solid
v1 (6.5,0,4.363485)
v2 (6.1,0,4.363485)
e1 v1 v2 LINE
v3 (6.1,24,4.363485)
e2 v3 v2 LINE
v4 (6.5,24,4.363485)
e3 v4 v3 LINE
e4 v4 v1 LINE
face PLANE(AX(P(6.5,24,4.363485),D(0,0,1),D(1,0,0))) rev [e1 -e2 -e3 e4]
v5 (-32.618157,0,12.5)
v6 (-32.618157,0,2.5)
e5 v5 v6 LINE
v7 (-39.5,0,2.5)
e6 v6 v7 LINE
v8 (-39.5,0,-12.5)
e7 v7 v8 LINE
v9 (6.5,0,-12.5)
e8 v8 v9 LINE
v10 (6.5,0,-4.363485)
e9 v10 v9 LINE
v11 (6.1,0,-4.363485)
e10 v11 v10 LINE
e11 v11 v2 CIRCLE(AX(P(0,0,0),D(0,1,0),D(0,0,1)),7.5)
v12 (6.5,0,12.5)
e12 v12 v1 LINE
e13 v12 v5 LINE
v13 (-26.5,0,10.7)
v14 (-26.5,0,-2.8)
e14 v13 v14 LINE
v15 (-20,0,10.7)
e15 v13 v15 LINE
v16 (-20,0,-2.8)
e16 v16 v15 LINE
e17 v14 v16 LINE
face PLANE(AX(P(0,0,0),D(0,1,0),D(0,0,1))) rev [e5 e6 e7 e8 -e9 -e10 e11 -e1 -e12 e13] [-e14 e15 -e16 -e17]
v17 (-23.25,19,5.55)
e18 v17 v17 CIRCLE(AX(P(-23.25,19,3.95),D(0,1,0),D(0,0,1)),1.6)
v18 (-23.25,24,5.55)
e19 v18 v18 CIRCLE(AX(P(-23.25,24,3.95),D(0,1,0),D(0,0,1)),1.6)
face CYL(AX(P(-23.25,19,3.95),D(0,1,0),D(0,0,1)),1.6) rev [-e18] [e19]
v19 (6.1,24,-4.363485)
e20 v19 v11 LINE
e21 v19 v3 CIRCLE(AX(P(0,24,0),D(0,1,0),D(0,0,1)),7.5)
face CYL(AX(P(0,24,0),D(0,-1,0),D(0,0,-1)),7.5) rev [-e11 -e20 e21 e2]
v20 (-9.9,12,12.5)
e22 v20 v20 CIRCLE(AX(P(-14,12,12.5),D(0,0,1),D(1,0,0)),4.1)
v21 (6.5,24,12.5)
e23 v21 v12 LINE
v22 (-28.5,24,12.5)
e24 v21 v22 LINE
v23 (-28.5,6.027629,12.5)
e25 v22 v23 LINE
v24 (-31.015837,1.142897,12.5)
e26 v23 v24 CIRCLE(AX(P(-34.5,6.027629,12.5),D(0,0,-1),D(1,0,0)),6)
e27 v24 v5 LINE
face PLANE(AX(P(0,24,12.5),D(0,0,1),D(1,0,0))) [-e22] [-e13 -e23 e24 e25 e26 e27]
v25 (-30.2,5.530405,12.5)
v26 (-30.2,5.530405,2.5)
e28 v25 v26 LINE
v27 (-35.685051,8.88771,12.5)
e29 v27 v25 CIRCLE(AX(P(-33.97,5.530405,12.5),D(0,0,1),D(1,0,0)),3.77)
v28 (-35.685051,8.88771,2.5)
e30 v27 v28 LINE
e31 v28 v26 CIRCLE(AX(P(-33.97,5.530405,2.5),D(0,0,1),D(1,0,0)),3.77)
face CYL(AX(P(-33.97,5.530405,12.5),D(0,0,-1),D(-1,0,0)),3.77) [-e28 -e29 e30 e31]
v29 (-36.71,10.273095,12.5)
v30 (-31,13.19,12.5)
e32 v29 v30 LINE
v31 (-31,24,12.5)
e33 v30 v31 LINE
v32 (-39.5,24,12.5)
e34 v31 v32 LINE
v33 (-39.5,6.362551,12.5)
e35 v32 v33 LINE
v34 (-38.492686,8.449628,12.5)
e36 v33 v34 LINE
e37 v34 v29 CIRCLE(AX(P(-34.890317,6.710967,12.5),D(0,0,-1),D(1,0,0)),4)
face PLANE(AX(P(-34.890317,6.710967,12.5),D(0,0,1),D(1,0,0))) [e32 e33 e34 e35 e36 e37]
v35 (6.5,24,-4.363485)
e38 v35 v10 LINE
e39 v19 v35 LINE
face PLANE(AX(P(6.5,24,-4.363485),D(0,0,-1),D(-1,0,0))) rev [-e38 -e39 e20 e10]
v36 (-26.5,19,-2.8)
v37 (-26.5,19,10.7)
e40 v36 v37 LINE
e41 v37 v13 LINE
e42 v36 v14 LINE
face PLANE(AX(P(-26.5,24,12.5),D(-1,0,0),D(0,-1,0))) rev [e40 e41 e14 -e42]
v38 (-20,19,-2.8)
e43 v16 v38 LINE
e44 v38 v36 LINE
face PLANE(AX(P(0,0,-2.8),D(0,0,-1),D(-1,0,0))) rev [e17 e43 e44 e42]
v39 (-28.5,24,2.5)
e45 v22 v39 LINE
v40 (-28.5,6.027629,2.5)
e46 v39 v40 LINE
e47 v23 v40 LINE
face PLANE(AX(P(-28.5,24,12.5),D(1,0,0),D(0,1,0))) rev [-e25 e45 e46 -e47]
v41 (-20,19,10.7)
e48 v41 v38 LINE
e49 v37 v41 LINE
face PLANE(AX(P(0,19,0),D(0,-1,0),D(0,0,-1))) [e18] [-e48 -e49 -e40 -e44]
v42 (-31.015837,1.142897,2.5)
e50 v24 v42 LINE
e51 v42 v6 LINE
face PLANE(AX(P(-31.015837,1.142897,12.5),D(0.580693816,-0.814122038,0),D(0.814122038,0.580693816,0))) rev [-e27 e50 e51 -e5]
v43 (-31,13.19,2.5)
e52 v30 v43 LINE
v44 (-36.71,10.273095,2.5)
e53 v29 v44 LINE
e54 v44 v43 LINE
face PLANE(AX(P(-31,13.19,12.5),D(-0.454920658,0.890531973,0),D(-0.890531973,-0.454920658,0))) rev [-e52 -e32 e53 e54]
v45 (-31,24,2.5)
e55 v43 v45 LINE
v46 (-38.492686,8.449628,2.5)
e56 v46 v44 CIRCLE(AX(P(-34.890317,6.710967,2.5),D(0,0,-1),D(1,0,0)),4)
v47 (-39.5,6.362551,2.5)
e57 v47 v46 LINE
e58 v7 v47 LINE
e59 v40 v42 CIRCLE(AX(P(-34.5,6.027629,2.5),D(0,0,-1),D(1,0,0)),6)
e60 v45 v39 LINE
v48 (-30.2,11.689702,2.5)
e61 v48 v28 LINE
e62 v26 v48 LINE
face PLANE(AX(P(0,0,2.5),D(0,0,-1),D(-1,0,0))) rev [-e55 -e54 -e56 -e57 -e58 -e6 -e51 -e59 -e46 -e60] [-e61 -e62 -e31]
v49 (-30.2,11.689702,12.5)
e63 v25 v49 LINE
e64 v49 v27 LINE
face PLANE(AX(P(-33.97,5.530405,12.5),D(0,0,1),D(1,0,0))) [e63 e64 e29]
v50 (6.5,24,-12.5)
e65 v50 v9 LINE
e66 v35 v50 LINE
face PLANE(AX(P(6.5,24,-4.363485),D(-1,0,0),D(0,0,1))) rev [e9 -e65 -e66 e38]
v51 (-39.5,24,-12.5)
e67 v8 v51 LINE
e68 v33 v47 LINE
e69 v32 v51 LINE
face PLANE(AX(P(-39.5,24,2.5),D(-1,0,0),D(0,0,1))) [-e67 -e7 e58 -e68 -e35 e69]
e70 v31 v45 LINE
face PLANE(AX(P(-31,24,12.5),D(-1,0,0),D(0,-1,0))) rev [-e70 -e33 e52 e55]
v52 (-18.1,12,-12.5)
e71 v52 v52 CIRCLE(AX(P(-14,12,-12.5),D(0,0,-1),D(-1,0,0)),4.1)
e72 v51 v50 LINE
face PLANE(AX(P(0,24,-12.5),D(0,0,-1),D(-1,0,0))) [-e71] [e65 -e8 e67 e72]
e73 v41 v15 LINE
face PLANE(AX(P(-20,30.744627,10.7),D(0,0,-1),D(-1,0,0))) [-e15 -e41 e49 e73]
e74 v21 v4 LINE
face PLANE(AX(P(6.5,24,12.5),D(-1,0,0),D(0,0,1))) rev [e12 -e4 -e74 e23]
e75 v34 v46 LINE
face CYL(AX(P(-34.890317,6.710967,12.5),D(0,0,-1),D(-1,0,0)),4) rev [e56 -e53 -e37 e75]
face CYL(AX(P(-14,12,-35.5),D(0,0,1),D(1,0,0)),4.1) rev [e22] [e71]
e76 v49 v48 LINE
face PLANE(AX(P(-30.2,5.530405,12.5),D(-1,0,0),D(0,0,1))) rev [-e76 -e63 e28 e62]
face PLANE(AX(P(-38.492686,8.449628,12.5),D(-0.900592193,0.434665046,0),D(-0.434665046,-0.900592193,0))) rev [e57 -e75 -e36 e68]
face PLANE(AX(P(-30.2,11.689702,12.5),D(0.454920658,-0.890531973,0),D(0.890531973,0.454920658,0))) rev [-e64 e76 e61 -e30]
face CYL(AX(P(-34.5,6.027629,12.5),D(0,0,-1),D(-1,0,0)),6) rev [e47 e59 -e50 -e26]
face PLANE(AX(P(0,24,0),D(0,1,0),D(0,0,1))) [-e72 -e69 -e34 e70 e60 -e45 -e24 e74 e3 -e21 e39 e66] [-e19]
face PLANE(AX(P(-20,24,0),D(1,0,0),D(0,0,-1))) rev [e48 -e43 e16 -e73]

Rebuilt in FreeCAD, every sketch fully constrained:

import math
import FreeCAD as App
import Part
import Sketcher

V = App.Vector
Q = App.Units.Quantity


def add_polygon(sketch, points):
    """Adds a closed chain of lines whose ends are joined by coincident constraints."""
    first, n = sketch.GeometryCount, len(points)
    for a, b in zip(points, points[1:] + points[:1]):
        sketch.addGeometry(Part.LineSegment(App.Vector(*a, 0), App.Vector(*b, 0)), False)
    for i in range(n):
        sketch.addConstraint(Sketcher.Constraint("Coincident", first + i, 2, first + (i + 1) % n, 1))

doc = App.newDocument("Part")
body = doc.addObject("PartDesign::Body", "Body")

sketch1 = body.newObject("Sketcher::SketchObject", "Sketch")
sketch1.AttachmentSupport = (doc.getObject("XZ_Plane"), [""])
sketch1.MapMode = "FlatFace"
add_polygon(sketch1, [(-10, -12), (-10, 12), (12, 12), (12, -12)])
sketch1.addGeometry(Part.Circle(V(0, 0, 0), V(0, 0, 1), 8), False)
sketch1.addConstraint([
    Sketcher.Constraint("Vertical", 0),
    Sketcher.Constraint("Horizontal", 1),
    Sketcher.Constraint("Vertical", 2),
    Sketcher.Constraint("Horizontal", 3),
    Sketcher.Constraint("Coincident", 4, 3, -1, 1),
    Sketcher.Constraint("Diameter", 4, Q("15 mm")),
    Sketcher.Constraint("DistanceY", 0, 1, 0, 2, Q("25 mm")),
    Sketcher.Constraint("DistanceX", 1, 1, 1, 2, Q("22.5 mm")),
    Sketcher.Constraint("DistanceX", 0, 2, -1, 1, Q("10 mm")),
    Sketcher.Constraint("DistanceY", -1, 1, 0, 2, Q("12.5 mm")),
])
pad1 = body.newObject("PartDesign::Pad", "Pad")
pad1.Profile = sketch1
pad1.Length = 24
pad1.Reversed = True

sketch2 = body.newObject("Sketcher::SketchObject", "Sketch001")
sketch2.AttachmentSupport = (doc.getObject("XZ_Plane"), [""])
sketch2.MapMode = "FlatFace"
add_polygon(sketch2, [(12.5, 12.5), (6.5, 12.5), (6.5, 4.36), (6.1, 4.36), (6.1, -4.36), (6.5, -4.36), (6.5, -12.5), (12.5, -12.5)])
sketch2.addConstraint([
    Sketcher.Constraint("Horizontal", 0),
    Sketcher.Constraint("Vertical", 1),
    Sketcher.Constraint("Horizontal", 2),
    Sketcher.Constraint("Vertical", 3),
    Sketcher.Constraint("Horizontal", 4),
    Sketcher.Constraint("Vertical", 5),
    Sketcher.Constraint("Horizontal", 6),
    Sketcher.Constraint("Vertical", 7),
    Sketcher.Constraint("Symmetric", 1, 2, 4, 2, -1),
    Sketcher.Constraint("Equal", 1, 5),
    Sketcher.Constraint("DistanceX", 0, 2, 0, 1, Q("6 mm")),
    Sketcher.Constraint("DistanceY", 7, 1, 7, 2, Q("25 mm")),
    Sketcher.Constraint("DistanceX", 2, 2, 2, 1, Q("0.4 mm")),
    Sketcher.Constraint("DistanceX", -1, 1, 0, 2, Q("6.5 mm")),
    Sketcher.Constraint("DistanceY", 3, 2, 3, 1, Q("8.72697 mm")),
])
pocket1 = body.newObject("PartDesign::Pocket", "Pocket")
pocket1.Profile = sketch2
pocket1.Type = "ThroughAll"

sketch3 = body.newObject("Sketcher::SketchObject", "Sketch002")
sketch3.AttachmentSupport = (doc.getObject("XZ_Plane"), [""])
sketch3.MapMode = "FlatFace"
add_polygon(sketch3, [(-20, 12), (-20, -12), (-10, -12), (-10, 12)])
sketch3.addConstraint([
    Sketcher.Constraint("Vertical", 0),
    Sketcher.Constraint("Horizontal", 1),
    Sketcher.Constraint("Vertical", 2),
    Sketcher.Constraint("Horizontal", 3),
    Sketcher.Constraint("DistanceX", 1, 1, 1, 2, Q("10 mm")),
    Sketcher.Constraint("DistanceY", 0, 2, 0, 1, Q("25 mm")),
    Sketcher.Constraint("DistanceX", 0, 2, -1, 1, Q("20 mm")),
    Sketcher.Constraint("DistanceY", 0, 2, -1, 1, Q("12.5 mm")),
])
pad2 = body.newObject("PartDesign::Pad", "Pad001")
pad2.Profile = sketch3
pad2.Length = 24
pad2.Reversed = True

sketch4 = body.newObject("Sketcher::SketchObject", "Sketch003")
sketch4.AttachmentSupport = (doc.getObject("XY_Plane"), [""])
sketch4.MapMode = "FlatFace"
sketch4.AttachmentOffset = App.Placement(V(0, 0, 12.5), App.Rotation())
sketch4.addGeometry(Part.Circle(V(-14, 12, 0), V(0, 0, 1), 4.1), False)
sketch4.addConstraint([
    Sketcher.Constraint("Diameter", 0, Q("8.2 mm")),
    Sketcher.Constraint("DistanceX", 0, 3, -1, 1, Q("14 mm")),
    Sketcher.Constraint("DistanceY", -1, 1, 0, 3, Q("12 mm")),
])
pocket2 = body.newObject("PartDesign::Pocket", "Pocket001")
pocket2.Profile = sketch4
pocket2.Length = 48

sketch5 = body.newObject("Sketcher::SketchObject", "Sketch004")
sketch5.AttachmentSupport = (doc.getObject("XY_Plane"), [""])
sketch5.MapMode = "FlatFace"
sketch5.AttachmentOffset = App.Placement(V(0, 0, -12.5), App.Rotation())
add_polygon(sketch5, [(-20, 24), (-20, 0), (-40, 0), (-40, 24)])
sketch5.addConstraint([
    Sketcher.Constraint("Vertical", 0),
    Sketcher.Constraint("Horizontal", 1),
    Sketcher.Constraint("Vertical", 2),
    Sketcher.Constraint("Horizontal", 3),
    Sketcher.Constraint("PointOnObject", 0, 2, -1),
    Sketcher.Constraint("DistanceY", 0, 2, 0, 1, Q("24 mm")),
    Sketcher.Constraint("DistanceX", 1, 2, 1, 1, Q("19.5 mm")),
    Sketcher.Constraint("DistanceX", 0, 2, -1, 1, Q("20 mm")),
])
pad3 = body.newObject("PartDesign::Pad", "Pad002")
pad3.Profile = sketch5
pad3.Length = 15

sketch6 = body.newObject("Sketcher::SketchObject", "Sketch005")
sketch6.AttachmentSupport = (doc.getObject("XY_Plane"), [""])
sketch6.MapMode = "FlatFace"
sketch6.AttachmentOffset = App.Placement(V(0, 0, 2.5), App.Rotation())
sketch6.addGeometry([
    Part.LineSegment(V(-32.6, 0, 0), V(-26.5, 0, 0)),
    Part.LineSegment(V(-26.5, 0, 0), V(-26.5, 24, 0)),
    Part.LineSegment(V(-26.5, 24, 0), V(-28.5, 24, 0)),
    Part.LineSegment(V(-28.5, 24, 0), V(-28.5, 6, 0)),
    Part.ArcOfCircle(Part.Circle(V(-34.5, 6, 0), V(0, 0, 1), 6), math.radians(-55), math.radians(0)),
    Part.LineSegment(V(-31, 1.1, 0), V(-32.6, 0, 0)),
    Part.LineSegment(V(-31, 24, 0), V(-39.5, 24, 0)),
    Part.LineSegment(V(-39.5, 24, 0), V(-39.5, 6.4, 0)),
    Part.LineSegment(V(-39.5, 6.4, 0), V(-38.5, 8.4, 0)),
    Part.ArcOfCircle(Part.Circle(V(-34.9, 6.7, 0), V(0, 0, 1), 4), math.radians(117), math.radians(154)),
    Part.LineSegment(V(-36.7, 10.3, 0), V(-31, 13.2, 0)),
    Part.LineSegment(V(-31, 13.2, 0), V(-31, 24, 0)),
    Part.LineSegment(V(-30.2, 5.5, 0), V(-30.2, 11.7, 0)),
    Part.LineSegment(V(-30.2, 11.7, 0), V(-35.7, 8.9, 0)),
    Part.ArcOfCircle(Part.Circle(V(-34, 5.5, 0), V(0, 0, 1), 3.8), math.radians(117), math.radians(360)),
], False)
sketch6.addConstraint([
    Sketcher.Constraint("Coincident", 0, 2, 1, 1),
    Sketcher.Constraint("Coincident", 1, 2, 2, 1),
    Sketcher.Constraint("Coincident", 2, 2, 3, 1),
    Sketcher.Constraint("Tangent", 3, 2, 4, 2),
    Sketcher.Constraint("Tangent", 4, 1, 5, 1),
    Sketcher.Constraint("Coincident", 5, 2, 0, 1),
    Sketcher.Constraint("Coincident", 6, 2, 7, 1),
    Sketcher.Constraint("Coincident", 7, 2, 8, 1),
    Sketcher.Constraint("Tangent", 8, 2, 9, 2),
    Sketcher.Constraint("Tangent", 9, 1, 10, 1),
    Sketcher.Constraint("Coincident", 10, 2, 11, 1),
    Sketcher.Constraint("Coincident", 11, 2, 6, 1),
    Sketcher.Constraint("Coincident", 12, 2, 13, 1),
    Sketcher.Constraint("Tangent", 13, 2, 14, 1),
    Sketcher.Constraint("Tangent", 14, 2, 12, 1),
    Sketcher.Constraint("Horizontal", 0),
    Sketcher.Constraint("Vertical", 1),
    Sketcher.Constraint("Horizontal", 2),
    Sketcher.Constraint("Vertical", 3),
    Sketcher.Constraint("Horizontal", 6),
    Sketcher.Constraint("Vertical", 7),
    Sketcher.Constraint("Vertical", 11),
    Sketcher.Constraint("Vertical", 12),
    Sketcher.Constraint("PointOnObject", 0, 2, -1),
    Sketcher.Constraint("Parallel", 10, 13),
    Sketcher.Constraint("Horizontal", 2, 2, 6, 2),
    Sketcher.Constraint("Radius", 4, Q("6 mm")),
    Sketcher.Constraint("Radius", 9, Q("4 mm")),
    Sketcher.Constraint("DistanceX", 2, 2, 2, 1, Q("2 mm")),
    Sketcher.Constraint("DistanceY", 1, 1, 1, 2, Q("24 mm")),
    Sketcher.Constraint("Radius", 14, Q("3.77 mm")),
    Sketcher.Constraint("DistanceX", 6, 2, 6, 1, Q("8.5 mm")),
    Sketcher.Constraint("DistanceX", 10, 2, -1, 1, Q("31 mm")),
    Sketcher.Constraint("DistanceX", 6, 2, 2, 2, Q("11 mm")),
    Sketcher.Constraint("DistanceY", 11, 1, 11, 2, Q("10.81 mm")),
    Sketcher.Constraint("DistanceX", 12, 2, -1, 1, Q("30.2 mm")),
    Sketcher.Constraint("DistanceX", 9, 1, -1, 1, Q("36.71 mm")),
    Sketcher.Constraint("DistanceY", 4, 3, 8, 2, Q("2.421998 mm")),
    Sketcher.Constraint("DistanceY", 3, 2, 3, 1, Q("17.972371 mm")),
    Sketcher.Constraint("DistanceY", 7, 2, 7, 1, Q("17.637449 mm")),
    Sketcher.Constraint("DistanceY", -1, 1, 12, 2, Q("11.689702 mm")),
    Sketcher.Constraint("DistanceX", 0, 1, 0, 2, Q("6.118157 mm")),
])
pad4 = body.newObject("PartDesign::Pad", "Pad003")
pad4.Profile = sketch6
pad4.Length = 10

sketch7 = body.newObject("Sketcher::SketchObject", "Sketch006")
sketch7.AttachmentSupport = (doc.getObject("XY_Plane"), [""])
sketch7.MapMode = "FlatFace"
sketch7.AttachmentOffset = App.Placement(V(0, 0, 2.5), App.Rotation())
add_polygon(sketch7, [(-26, 24), (-26, 0), (-20, 0), (-20, 24)])
sketch7.addConstraint([
    Sketcher.Constraint("Vertical", 0),
    Sketcher.Constraint("Horizontal", 1),
    Sketcher.Constraint("Vertical", 2),
    Sketcher.Constraint("Horizontal", 3),
    Sketcher.Constraint("PointOnObject", 0, 2, -1),
    Sketcher.Constraint("DistanceY", 0, 2, 0, 1, Q("24 mm")),
    Sketcher.Constraint("DistanceX", 1, 1, 1, 2, Q("6.5 mm")),
    Sketcher.Constraint("DistanceX", 1, 2, -1, 1, Q("20 mm")),
])
pocket3 = body.newObject("PartDesign::Pocket", "Pocket002")
pocket3.Profile = sketch7
pocket3.Length = 5.3

sketch8 = body.newObject("Sketcher::SketchObject", "Sketch007")
sketch8.AttachmentSupport = (doc.getObject("XZ_Plane"), [""])
sketch8.MapMode = "FlatFace"
add_polygon(sketch8, [(-26.5, 12.5), (-26.5, 10.7), (-20, 10.7), (-20, 12.5)])
sketch8.addConstraint([
    Sketcher.Constraint("Vertical", 0),
    Sketcher.Constraint("Horizontal", 1),
    Sketcher.Constraint("Vertical", 2),
    Sketcher.Constraint("Horizontal", 3),
    Sketcher.Constraint("DistanceX", 1, 1, 1, 2, Q("6.5 mm")),
    Sketcher.Constraint("DistanceY", 0, 2, 0, 1, Q("1.8 mm")),
    Sketcher.Constraint("DistanceX", 1, 2, -1, 1, Q("20 mm")),
    Sketcher.Constraint("DistanceY", -1, 1, 0, 2, Q("10.7 mm")),
])
pad5 = body.newObject("PartDesign::Pad", "Pad004")
pad5.Profile = sketch8
pad5.Length = 24
pad5.Reversed = True

sketch9 = body.newObject("Sketcher::SketchObject", "Sketch008")
sketch9.AttachmentSupport = (doc.getObject("XZ_Plane"), [""])
sketch9.MapMode = "FlatFace"
sketch9.AttachmentOffset = App.Placement(V(0, 0, -24), App.Rotation())
add_polygon(sketch9, [(-26.5, -2.8), (-26.5, 10.7), (-20, 10.7), (-20, -2.8)])
sketch9.addGeometry(Part.Circle(V(-23.2, 4, 0), V(0, 0, 1), 1.6), False)
sketch9.addConstraint([
    Sketcher.Constraint("Vertical", 0),
    Sketcher.Constraint("Horizontal", 1),
    Sketcher.Constraint("Vertical", 2),
    Sketcher.Constraint("Horizontal", 3),
    Sketcher.Constraint("Diameter", 4, Q("3.2 mm")),
    Sketcher.Constraint("DistanceX", 1, 1, 1, 2, Q("6.5 mm")),
    Sketcher.Constraint("DistanceY", 0, 1, 0, 2, Q("13.5 mm")),
    Sketcher.Constraint("DistanceX", 1, 2, -1, 1, Q("20 mm")),
    Sketcher.Constraint("DistanceY", -1, 1, 0, 2, Q("10.7 mm")),
    Sketcher.Constraint("DistanceX", 4, 3, -1, 1, Q("23.25 mm")),
    Sketcher.Constraint("DistanceY", -1, 1, 4, 3, Q("3.95 mm")),
])
pad6 = body.newObject("PartDesign::Pad", "Pad005")
pad6.Profile = sketch9
pad6.Length = 5

doc.recompute()
